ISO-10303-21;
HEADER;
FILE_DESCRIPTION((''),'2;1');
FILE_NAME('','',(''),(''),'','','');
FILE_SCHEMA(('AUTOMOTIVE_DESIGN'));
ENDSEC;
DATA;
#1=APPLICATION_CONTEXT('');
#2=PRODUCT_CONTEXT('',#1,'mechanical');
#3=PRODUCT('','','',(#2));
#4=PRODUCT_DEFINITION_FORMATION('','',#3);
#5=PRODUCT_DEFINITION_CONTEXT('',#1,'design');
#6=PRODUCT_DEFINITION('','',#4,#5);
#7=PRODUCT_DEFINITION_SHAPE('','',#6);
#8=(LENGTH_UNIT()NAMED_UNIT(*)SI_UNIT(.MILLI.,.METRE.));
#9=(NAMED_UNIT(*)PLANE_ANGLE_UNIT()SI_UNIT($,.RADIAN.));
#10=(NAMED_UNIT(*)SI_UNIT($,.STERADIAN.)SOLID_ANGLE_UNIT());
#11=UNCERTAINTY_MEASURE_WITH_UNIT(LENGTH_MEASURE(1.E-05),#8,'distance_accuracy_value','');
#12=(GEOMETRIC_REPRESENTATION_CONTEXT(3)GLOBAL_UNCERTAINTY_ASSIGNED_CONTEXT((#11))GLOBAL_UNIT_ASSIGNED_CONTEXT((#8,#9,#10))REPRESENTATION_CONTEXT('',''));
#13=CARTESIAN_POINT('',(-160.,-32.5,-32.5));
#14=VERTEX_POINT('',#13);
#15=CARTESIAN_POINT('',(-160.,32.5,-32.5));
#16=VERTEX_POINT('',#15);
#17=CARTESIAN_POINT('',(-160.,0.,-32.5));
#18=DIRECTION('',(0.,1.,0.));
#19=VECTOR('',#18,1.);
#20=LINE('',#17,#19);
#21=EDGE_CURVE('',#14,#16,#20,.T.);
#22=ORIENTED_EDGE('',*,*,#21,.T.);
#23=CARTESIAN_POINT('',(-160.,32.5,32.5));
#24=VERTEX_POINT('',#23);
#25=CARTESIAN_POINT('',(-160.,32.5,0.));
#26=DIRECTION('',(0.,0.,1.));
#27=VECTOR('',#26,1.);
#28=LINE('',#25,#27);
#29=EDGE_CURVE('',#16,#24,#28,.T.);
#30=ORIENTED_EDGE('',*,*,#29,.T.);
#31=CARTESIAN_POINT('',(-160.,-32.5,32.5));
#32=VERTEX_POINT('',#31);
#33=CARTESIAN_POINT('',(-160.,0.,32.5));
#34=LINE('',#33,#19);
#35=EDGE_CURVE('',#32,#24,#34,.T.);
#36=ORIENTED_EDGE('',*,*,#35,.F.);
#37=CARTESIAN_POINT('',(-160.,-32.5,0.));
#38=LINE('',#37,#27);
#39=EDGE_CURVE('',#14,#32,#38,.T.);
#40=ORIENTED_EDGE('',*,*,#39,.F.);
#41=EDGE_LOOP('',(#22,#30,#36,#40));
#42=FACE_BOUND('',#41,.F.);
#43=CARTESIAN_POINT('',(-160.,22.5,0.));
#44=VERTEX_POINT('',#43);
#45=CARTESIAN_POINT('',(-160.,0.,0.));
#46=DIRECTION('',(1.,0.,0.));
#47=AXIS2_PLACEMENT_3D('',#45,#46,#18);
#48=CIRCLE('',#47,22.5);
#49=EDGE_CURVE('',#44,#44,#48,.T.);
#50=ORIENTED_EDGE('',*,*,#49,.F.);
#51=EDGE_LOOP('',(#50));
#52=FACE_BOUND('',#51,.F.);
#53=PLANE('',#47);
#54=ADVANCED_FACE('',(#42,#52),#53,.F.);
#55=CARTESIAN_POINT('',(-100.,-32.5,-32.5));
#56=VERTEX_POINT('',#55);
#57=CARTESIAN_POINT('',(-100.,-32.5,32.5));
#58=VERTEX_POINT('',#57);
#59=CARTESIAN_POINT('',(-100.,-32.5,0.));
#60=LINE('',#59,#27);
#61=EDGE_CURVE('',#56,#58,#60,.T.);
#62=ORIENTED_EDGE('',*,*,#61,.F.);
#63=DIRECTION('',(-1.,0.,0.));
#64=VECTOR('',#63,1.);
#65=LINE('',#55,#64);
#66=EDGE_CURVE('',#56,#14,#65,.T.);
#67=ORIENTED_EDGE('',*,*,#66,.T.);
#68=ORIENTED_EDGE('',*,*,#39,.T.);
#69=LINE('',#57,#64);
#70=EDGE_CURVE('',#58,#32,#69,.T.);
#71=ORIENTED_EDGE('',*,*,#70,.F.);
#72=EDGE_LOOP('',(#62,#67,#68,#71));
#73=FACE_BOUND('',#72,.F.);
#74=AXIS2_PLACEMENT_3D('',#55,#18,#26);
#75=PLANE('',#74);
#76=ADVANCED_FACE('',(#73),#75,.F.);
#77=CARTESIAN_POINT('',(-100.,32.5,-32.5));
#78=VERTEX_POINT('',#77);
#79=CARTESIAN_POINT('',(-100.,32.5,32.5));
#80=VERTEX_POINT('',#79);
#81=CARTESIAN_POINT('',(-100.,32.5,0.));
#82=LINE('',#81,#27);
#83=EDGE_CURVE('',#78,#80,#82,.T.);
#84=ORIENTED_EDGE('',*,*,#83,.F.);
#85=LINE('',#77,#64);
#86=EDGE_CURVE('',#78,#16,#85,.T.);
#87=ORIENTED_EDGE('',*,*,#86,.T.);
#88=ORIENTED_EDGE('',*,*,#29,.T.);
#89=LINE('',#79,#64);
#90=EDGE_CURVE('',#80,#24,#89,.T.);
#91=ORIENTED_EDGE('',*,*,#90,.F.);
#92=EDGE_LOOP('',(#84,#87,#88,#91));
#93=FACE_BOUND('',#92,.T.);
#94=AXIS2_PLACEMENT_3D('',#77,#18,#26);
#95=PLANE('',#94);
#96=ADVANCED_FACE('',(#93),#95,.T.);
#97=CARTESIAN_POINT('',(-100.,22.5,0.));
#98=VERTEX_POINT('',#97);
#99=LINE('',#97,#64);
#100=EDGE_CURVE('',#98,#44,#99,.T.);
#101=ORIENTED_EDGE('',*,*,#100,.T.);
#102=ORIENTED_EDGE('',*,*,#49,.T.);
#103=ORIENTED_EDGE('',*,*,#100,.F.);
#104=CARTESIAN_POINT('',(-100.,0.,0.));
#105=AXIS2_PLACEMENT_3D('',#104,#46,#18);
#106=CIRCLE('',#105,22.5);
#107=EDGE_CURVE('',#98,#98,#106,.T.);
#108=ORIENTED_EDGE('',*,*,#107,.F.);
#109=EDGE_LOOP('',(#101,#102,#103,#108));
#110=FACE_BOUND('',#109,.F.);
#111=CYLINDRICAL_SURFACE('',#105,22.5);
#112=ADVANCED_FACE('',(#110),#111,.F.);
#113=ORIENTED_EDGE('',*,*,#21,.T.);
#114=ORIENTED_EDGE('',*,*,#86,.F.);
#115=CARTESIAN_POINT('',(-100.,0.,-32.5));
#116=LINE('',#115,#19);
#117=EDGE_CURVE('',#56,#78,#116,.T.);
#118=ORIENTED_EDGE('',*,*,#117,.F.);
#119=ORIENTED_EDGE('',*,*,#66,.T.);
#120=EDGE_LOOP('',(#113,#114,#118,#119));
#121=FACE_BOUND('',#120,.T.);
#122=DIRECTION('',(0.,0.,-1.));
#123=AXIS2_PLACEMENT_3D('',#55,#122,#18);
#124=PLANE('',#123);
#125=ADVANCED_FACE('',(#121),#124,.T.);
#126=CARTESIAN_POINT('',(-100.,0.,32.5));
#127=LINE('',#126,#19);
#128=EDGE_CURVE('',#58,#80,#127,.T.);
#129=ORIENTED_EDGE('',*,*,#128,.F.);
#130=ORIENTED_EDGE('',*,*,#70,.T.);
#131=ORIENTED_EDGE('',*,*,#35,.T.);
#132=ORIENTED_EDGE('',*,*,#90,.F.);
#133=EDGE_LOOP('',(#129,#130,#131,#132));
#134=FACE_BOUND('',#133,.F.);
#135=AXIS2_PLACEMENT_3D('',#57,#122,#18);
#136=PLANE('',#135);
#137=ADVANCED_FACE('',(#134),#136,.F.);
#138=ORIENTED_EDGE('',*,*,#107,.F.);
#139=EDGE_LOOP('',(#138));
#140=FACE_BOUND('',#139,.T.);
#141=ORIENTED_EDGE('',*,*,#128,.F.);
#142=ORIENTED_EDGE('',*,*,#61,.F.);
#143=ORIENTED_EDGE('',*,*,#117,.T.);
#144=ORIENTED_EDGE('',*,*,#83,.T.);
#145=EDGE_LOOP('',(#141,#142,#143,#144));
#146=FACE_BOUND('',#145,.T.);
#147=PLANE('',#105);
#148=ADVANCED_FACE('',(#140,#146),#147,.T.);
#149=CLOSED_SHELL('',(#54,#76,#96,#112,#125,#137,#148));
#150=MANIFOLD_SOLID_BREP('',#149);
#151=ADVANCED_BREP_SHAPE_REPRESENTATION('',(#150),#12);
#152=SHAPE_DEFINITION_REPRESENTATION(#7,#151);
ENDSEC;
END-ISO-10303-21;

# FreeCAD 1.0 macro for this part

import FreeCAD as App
import Part
import Sketcher
Q = App.Units.Quantity


def add_polygon(sketch, points):
    """Adds a closed chain of lines whose ends are joined by coincident constraints."""
    first, n = sketch.GeometryCount, len(points)
    for a, b in zip(points, points[1:] + points[:1]):
        sketch.addGeometry(Part.LineSegment(App.Vector(*a, 0), App.Vector(*b, 0)), False)
    for i in range(n):
        sketch.addConstraint(Sketcher.Constraint("Coincident", first + i, 2, first + (i + 1) % n, 1))

doc = App.newDocument("Part")
body = doc.addObject("PartDesign::Body", "Body")

# Sketch on YZ plane
sketch1 = body.newObject("Sketcher::SketchObject", "Sketch")
sketch1.AttachmentSupport = (doc.getObject("YZ_Plane"), [""])
sketch1.MapMode = "FlatFace"
sketch1.AttachmentOffset = App.Placement(App.Vector(0, 0, -100), App.Rotation())
add_polygon(sketch1, [(-32.5, 32.5), (-32.5, -32.5), (32.5, -32.5), (32.5, 32.5)])  # lines 0-3
sketch1.addGeometry(Part.Circle(App.Vector(0, 0, 0), App.Vector(0, 0, 1), 22.5), False)  # 4
sketch1.addConstraint([
    Sketcher.Constraint("Vertical", 0),
    Sketcher.Constraint("Horizontal", 1),
    Sketcher.Constraint("Vertical", 2),
    Sketcher.Constraint("Horizontal", 3),
    Sketcher.Constraint("Coincident", 4, 3, -1, 1),
    Sketcher.Constraint("Symmetric", 0, 2, 2, 2, -1, 1),
    Sketcher.Constraint("Equal", 3, 0),
    Sketcher.Constraint("Diameter", 4, Q("45 mm")),
    Sketcher.Constraint("DistanceX", 1, 1, 1, 2, Q("65 mm")),
])
pad1 = body.newObject("PartDesign::Pad", "Pad")
pad1.Profile = sketch1
pad1.Length = 60
pad1.Reversed = True

doc.recompute()
